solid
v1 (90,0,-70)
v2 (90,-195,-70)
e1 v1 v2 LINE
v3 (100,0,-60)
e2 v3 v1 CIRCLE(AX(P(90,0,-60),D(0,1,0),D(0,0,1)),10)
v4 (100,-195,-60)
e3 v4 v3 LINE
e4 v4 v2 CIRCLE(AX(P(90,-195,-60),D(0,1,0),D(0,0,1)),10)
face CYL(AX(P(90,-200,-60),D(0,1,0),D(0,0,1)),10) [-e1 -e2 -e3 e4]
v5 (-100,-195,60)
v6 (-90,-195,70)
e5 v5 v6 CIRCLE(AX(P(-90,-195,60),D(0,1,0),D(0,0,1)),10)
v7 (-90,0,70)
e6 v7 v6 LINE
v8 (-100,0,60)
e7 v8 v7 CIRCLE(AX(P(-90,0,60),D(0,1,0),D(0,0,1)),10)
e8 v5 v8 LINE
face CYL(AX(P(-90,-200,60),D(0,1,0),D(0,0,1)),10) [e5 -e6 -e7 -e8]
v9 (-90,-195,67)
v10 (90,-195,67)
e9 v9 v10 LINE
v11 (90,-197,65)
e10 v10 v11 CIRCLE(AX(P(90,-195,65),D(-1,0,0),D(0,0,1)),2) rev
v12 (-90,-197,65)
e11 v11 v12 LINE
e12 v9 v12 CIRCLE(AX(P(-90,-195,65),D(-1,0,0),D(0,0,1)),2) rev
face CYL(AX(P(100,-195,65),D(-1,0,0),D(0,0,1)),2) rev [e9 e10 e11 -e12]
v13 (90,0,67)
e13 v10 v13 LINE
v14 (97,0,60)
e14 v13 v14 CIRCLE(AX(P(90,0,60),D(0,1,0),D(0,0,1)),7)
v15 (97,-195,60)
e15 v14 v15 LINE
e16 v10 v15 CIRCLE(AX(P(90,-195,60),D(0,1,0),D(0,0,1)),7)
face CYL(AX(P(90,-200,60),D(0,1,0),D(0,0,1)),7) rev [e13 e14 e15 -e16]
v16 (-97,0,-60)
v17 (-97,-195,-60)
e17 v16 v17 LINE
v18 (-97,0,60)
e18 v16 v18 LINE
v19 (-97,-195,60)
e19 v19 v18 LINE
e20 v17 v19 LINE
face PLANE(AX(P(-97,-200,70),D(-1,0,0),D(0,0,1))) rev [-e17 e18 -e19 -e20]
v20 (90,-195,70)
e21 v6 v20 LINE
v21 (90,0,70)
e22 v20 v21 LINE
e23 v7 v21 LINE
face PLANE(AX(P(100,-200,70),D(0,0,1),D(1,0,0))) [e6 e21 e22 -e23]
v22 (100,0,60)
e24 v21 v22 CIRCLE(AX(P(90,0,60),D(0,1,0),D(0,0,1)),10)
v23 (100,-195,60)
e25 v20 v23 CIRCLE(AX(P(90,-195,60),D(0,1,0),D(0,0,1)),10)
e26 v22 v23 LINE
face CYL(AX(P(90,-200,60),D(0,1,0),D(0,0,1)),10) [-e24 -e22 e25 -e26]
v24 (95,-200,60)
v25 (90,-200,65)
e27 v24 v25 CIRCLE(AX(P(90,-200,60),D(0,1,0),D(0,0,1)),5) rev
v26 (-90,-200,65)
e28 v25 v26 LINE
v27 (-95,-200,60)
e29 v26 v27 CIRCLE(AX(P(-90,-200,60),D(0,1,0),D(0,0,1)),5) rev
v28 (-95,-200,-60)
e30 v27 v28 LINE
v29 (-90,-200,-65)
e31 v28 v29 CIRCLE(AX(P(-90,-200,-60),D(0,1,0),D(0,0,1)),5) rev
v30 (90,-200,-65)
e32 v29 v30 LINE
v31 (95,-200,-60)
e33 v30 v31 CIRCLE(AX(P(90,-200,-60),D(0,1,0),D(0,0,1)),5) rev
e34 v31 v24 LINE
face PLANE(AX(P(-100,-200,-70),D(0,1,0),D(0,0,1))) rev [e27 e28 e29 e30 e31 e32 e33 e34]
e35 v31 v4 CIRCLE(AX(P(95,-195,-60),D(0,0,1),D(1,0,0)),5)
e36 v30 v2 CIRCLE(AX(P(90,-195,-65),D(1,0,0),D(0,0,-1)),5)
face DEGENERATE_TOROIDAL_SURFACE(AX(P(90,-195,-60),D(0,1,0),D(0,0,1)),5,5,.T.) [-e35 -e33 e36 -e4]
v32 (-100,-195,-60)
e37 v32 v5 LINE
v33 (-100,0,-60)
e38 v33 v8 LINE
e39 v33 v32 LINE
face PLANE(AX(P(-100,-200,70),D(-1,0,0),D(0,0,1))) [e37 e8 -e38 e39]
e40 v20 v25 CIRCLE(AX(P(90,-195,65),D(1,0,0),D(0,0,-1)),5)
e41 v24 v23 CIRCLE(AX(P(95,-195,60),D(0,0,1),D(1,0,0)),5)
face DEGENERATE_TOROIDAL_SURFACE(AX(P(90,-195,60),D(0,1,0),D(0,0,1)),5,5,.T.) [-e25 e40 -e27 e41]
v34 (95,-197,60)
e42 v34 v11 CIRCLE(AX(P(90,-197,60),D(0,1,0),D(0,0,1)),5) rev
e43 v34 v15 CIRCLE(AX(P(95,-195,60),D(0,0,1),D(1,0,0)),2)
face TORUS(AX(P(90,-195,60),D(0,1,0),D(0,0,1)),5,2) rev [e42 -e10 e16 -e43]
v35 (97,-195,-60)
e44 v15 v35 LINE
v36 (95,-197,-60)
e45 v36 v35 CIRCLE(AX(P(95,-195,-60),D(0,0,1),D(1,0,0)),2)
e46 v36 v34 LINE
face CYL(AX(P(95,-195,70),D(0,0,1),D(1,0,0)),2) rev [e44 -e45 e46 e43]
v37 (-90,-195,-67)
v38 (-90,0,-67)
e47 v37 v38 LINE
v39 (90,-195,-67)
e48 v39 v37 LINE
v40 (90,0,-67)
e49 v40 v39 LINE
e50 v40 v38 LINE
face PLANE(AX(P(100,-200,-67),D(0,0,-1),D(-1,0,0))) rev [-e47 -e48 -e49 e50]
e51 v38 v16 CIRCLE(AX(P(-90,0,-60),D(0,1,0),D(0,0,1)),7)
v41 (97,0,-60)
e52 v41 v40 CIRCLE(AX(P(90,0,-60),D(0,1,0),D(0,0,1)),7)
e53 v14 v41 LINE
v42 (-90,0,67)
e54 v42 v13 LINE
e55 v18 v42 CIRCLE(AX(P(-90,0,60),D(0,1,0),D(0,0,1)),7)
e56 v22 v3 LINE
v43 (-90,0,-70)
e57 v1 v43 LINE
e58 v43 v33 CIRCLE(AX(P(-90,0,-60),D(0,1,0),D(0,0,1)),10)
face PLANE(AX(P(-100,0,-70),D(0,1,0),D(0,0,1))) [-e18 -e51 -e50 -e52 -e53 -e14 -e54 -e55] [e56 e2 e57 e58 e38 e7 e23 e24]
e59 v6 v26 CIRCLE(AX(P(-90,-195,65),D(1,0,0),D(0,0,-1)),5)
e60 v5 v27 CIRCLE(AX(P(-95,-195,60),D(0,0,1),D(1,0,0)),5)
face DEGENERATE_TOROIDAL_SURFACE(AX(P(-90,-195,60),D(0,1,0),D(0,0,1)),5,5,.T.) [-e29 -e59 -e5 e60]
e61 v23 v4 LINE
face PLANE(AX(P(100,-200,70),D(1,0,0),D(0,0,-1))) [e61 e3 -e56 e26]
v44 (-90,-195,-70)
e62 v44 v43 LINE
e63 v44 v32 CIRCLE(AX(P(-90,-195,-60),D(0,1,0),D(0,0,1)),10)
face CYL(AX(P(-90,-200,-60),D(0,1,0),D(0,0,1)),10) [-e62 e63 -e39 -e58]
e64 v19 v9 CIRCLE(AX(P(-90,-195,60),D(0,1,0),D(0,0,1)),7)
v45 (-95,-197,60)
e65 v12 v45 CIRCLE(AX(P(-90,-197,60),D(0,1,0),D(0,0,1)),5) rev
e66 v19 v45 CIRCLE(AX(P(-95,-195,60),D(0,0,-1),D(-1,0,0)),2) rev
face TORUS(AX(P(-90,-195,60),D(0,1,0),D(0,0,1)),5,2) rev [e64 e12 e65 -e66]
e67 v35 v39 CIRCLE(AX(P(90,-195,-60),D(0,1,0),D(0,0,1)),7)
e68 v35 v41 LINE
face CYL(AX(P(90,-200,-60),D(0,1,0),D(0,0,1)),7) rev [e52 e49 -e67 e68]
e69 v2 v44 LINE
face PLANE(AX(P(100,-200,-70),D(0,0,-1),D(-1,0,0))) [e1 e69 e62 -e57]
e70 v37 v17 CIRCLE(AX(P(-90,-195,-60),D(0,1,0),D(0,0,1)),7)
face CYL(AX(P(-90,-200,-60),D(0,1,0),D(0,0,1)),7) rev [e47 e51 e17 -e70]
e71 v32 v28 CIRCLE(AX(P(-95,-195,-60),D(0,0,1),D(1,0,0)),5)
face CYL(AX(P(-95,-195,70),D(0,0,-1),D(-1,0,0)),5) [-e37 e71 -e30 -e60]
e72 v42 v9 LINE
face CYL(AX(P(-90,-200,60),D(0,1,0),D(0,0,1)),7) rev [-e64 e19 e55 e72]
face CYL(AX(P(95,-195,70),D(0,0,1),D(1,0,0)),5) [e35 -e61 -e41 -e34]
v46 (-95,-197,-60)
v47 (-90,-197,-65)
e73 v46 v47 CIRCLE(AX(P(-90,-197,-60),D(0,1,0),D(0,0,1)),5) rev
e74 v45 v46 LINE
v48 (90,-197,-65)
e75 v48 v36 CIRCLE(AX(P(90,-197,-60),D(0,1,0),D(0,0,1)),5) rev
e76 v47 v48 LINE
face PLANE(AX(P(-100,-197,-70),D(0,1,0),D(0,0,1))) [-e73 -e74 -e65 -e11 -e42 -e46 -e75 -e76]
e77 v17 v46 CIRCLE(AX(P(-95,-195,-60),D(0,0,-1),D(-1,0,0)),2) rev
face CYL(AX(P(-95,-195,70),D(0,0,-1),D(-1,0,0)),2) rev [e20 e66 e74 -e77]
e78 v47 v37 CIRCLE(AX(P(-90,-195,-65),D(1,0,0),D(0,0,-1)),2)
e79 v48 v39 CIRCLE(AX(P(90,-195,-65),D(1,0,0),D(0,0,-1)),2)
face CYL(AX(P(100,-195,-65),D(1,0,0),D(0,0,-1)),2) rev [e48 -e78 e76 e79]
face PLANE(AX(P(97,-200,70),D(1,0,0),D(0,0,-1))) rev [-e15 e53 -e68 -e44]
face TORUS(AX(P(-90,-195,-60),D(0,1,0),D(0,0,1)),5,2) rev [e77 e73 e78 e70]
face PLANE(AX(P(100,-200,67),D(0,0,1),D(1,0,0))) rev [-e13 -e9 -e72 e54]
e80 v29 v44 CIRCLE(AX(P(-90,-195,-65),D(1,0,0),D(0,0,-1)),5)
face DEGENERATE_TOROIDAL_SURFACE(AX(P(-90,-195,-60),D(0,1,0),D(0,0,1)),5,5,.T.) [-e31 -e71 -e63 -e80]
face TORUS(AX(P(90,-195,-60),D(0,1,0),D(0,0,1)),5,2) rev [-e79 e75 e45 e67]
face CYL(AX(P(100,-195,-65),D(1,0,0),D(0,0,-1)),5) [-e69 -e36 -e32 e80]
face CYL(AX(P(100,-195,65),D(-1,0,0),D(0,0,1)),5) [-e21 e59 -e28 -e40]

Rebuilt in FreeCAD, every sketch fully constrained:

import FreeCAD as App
import Part
import Sketcher


def edges_at(feature, points):
    """Names of the edges that pass closest to the given points."""
    edges = feature.Shape.Edges
    near = lambda p: min(range(len(edges)), key=lambda i: edges[i].distToShape(Part.Vertex(*p))[0])
    return sorted({f"Edge{near(p) + 1}" for p in points})


def faces_at(feature, points):
    """Names of the faces that lie closest to the given points."""
    faces = feature.Shape.Faces
    near = lambda p: min(range(len(faces)), key=lambda i: faces[i].distToShape(Part.Vertex(*p))[0])
    return sorted({f"Face{near(p) + 1}" for p in points})

doc = App.newDocument("Part")
body = doc.addObject("PartDesign::Body", "Body")

# Sketch on XZ plane
sketch1 = body.newObject("Sketcher::SketchObject", "Sketch")
sketch1.AttachmentSupport = (doc.getObject("XZ_Plane"), [""])
sketch1.MapMode = "FlatFace"
sketch1.addGeometry(Part.LineSegment(App.Vector(-100, -70, 0), App.Vector(-100, 70, 0)), False)
sketch1.addGeometry(Part.LineSegment(App.Vector(-100, 70, 0), App.Vector(100, 70, 0)), False)
sketch1.addGeometry(Part.LineSegment(App.Vector(100, 70, 0), App.Vector(100, -70, 0)), False)
sketch1.addGeometry(Part.LineSegment(App.Vector(100, -70, 0), App.Vector(-100, -70, 0)), False)
sketch1.addConstraint(Sketcher.Constraint("Coincident", 0, 2, 1, 1))
sketch1.addConstraint(Sketcher.Constraint("Coincident", 1, 2, 2, 1))
sketch1.addConstraint(Sketcher.Constraint("Coincident", 2, 2, 3, 1))
sketch1.addConstraint(Sketcher.Constraint("Coincident", 3, 2, 0, 1))
sketch1.addConstraint(Sketcher.Constraint("Vertical", 0))
sketch1.addConstraint(Sketcher.Constraint("Horizontal", 1))
sketch1.addConstraint(Sketcher.Constraint("Vertical", 2))
sketch1.addConstraint(Sketcher.Constraint("Horizontal", 3))
sketch1.addConstraint(Sketcher.Constraint("Symmetric", 0, 2, 2, 2, -1, 1))
sketch1.addConstraint(Sketcher.Constraint("DistanceX", 1, 1, 1, 2, 200.0))
sketch1.addConstraint(Sketcher.Constraint("DistanceY", 0, 1, 0, 2, 140.0))
pad1 = body.newObject("PartDesign::Pad", "Pad")
pad1.Profile = sketch1
pad1.Length = 200
doc.recompute()

fillet = body.newObject("PartDesign::Fillet", "Fillet")
fillet.Base = (pad1, edges_at(pad1, [
    (-100, -100, -70),
    (100, -100, -70),
    (100, -100, 70),
    (-100, -100, 70),
]))
fillet.Radius = 10
doc.recompute()

fillet2 = body.newObject("PartDesign::Fillet", "Fillet001")
fillet2.Base = (fillet, edges_at(fillet, [
    (-100, -200, 0),
    (0, -200, 70),
    (0, -200, -70),
    (100, -200, 0),
    (97.071, -200, -67.071),
    (97.071, -200, 67.071),
    (-97.071, -200, -67.071),
    (-97.071, -200, 67.071),
]))
fillet2.Radius = 5
doc.recompute()

thickness = body.newObject("PartDesign::Thickness", "Thickness")
thickness.Base = (fillet2, faces_at(fillet2, [(0, 0, 0)]))
thickness.Value = 3
thickness.Reversed = True
thickness.Join = "Intersection"

doc.recompute()
